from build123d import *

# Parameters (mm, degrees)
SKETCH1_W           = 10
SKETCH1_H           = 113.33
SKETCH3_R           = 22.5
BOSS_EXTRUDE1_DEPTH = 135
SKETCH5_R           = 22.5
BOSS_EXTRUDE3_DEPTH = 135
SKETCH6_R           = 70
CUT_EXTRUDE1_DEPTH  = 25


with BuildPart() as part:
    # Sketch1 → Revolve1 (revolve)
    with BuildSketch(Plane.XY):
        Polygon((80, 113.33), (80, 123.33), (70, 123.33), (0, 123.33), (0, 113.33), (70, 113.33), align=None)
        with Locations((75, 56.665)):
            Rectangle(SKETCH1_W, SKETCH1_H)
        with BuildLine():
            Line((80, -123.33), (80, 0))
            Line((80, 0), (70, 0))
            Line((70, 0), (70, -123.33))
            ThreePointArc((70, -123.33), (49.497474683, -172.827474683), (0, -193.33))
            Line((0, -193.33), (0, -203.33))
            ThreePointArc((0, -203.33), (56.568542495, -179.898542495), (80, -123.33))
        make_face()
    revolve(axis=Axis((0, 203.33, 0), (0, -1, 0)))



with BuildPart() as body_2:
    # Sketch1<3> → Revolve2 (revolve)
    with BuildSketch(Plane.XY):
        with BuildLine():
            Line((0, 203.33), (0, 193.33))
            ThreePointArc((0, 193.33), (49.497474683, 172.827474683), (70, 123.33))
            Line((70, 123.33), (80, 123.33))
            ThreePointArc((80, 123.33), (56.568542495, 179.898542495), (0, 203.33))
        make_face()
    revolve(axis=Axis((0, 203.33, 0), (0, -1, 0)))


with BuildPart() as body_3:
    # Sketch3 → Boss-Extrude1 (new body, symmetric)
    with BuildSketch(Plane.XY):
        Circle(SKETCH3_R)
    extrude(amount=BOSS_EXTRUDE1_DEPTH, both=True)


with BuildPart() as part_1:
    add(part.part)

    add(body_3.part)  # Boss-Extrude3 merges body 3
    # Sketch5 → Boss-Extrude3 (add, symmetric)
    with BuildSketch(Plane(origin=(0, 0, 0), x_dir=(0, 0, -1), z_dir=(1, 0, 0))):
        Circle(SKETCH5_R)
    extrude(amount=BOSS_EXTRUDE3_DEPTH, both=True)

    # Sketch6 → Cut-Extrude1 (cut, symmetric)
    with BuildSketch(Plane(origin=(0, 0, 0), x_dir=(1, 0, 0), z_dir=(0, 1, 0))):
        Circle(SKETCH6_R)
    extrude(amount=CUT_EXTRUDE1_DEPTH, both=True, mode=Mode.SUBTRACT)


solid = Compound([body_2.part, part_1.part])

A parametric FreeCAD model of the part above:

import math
import FreeCAD as App
import Part
import Sketcher

V = App.Vector

doc = App.newDocument("Part")
body = doc.addObject("PartDesign::Body", "Body")

# Sketch on XY plane
sketch1 = doc.addObject("Sketcher::SketchObject", "Sketch")
body.addObject(sketch1)
sketch1.AttachmentSupport = (doc.XY_Plane, [""])
sketch1.MapMode = "FlatFace"
sketch1.addGeometry(Part.LineSegment(V(80, 123, 0), V(0, 123, 0)), False)
sketch1.addGeometry(Part.LineSegment(V(0, 123, 0), V(0, 113, 0)), False)
sketch1.addGeometry(Part.LineSegment(V(0, 113, 0), V(70, 113, 0)), False)
sketch1.addGeometry(Part.LineSegment(V(70, 113, 0), V(70, -123, 0)), False)
sketch1.addGeometry(Part.ArcOfCircle(Part.Circle(V(0, -123, 0), V(0, 0, 1), 70), math.radians(-90), math.radians(0)), False)
sketch1.addGeometry(Part.LineSegment(V(0, -193, 0), V(0, -203, 0)), False)
sketch1.addGeometry(Part.ArcOfCircle(Part.Circle(V(0, -123, 0), V(0, 0, 1), 80), math.radians(-90), math.radians(0)), False)
sketch1.addGeometry(Part.LineSegment(V(80, -123, 0), V(80, 123, 0)), False)
sketch1.addConstraint(Sketcher.Constraint("Coincident", 0, 2, 1, 1))
sketch1.addConstraint(Sketcher.Constraint("Coincident", 1, 2, 2, 1))
sketch1.addConstraint(Sketcher.Constraint("Coincident", 2, 2, 3, 1))
sketch1.addConstraint(Sketcher.Constraint("Tangent", 3, 2, 4, 2))
sketch1.addConstraint(Sketcher.Constraint("Coincident", 4, 1, 5, 1))
sketch1.addConstraint(Sketcher.Constraint("Coincident", 5, 2, 6, 1))
sketch1.addConstraint(Sketcher.Constraint("Tangent", 6, 2, 7, 1))
sketch1.addConstraint(Sketcher.Constraint("Coincident", 7, 2, 0, 1))
sketch1.addConstraint(Sketcher.Constraint("Horizontal", 0))
sketch1.addConstraint(Sketcher.Constraint("Vertical", 1))
sketch1.addConstraint(Sketcher.Constraint("Horizontal", 2))
sketch1.addConstraint(Sketcher.Constraint("Vertical", 3))
sketch1.addConstraint(Sketcher.Constraint("Vertical", 5))
sketch1.addConstraint(Sketcher.Constraint("Vertical", 7))
sketch1.addConstraint(Sketcher.Constraint("Coincident", 6, 3, 4, 3))
sketch1.addConstraint(Sketcher.Constraint("PointOnObject", 4, 3, -2))
sketch1.addConstraint(Sketcher.Constraint("PointOnObject", 0, 2, -2))
sketch1.addConstraint(Sketcher.Constraint("PointOnObject", 4, 1, -2))
sketch1.addConstraint(Sketcher.Constraint("Equal", 1, 5))
sketch1.addConstraint(Sketcher.Constraint("Radius", 4, 70.0))
sketch1.addConstraint(Sketcher.Constraint("Radius", 6, 80.0))
sketch1.addConstraint(Sketcher.Constraint("DistanceY", 3, 2, 3, 1, 236.66))
sketch1.addConstraint(Sketcher.Constraint("DistanceY", 4, 3, -1, 1, 123.33))
revolution = doc.addObject("PartDesign::Revolution", "Revolution")
body.addObject(revolution)
revolution.Profile = sketch1
revolution.ReferenceAxis = (sketch1, ["V_Axis"])
revolution.Angle = 360
body2 = doc.addObject("PartDesign::Body", "Body001")

# Sketch on XY plane
sketch2 = doc.addObject("Sketcher::SketchObject", "Sketch001")
body2.addObject(sketch2)
sketch2.AttachmentSupport = (doc.getObject("XY_Plane001"), [""])
sketch2.MapMode = "FlatFace"
sketch2.addGeometry(Part.LineSegment(V(0, 203, 0), V(0, 193, 0)), False)
sketch2.addGeometry(Part.ArcOfCircle(Part.Circle(V(0, 123, 0), V(0, 0, 1), 70), math.radians(0), math.radians(90)), False)
sketch2.addGeometry(Part.LineSegment(V(70, 123, 0), V(80, 123, 0)), False)
sketch2.addGeometry(Part.ArcOfCircle(Part.Circle(V(0, 123, 0), V(0, 0, 1), 80), math.radians(0), math.radians(90)), False)
sketch2.addConstraint(Sketcher.Constraint("Coincident", 0, 2, 1, 2))
sketch2.addConstraint(Sketcher.Constraint("Coincident", 1, 1, 2, 1))
sketch2.addConstraint(Sketcher.Constraint("Coincident", 2, 2, 3, 1))
sketch2.addConstraint(Sketcher.Constraint("Coincident", 3, 2, 0, 1))
sketch2.addConstraint(Sketcher.Constraint("Vertical", 0))
sketch2.addConstraint(Sketcher.Constraint("Horizontal", 2))
sketch2.addConstraint(Sketcher.Constraint("Coincident", 3, 3, 1, 3))
sketch2.addConstraint(Sketcher.Constraint("PointOnObject", 1, 3, -2))
sketch2.addConstraint(Sketcher.Constraint("PointOnObject", 0, 2, -2))
sketch2.addConstraint(Sketcher.Constraint("Horizontal", 3, 3, 1, 1))
sketch2.addConstraint(Sketcher.Constraint("Radius", 1, 70.0))
sketch2.addConstraint(Sketcher.Constraint("Radius", 3, 80.0))
sketch2.addConstraint(Sketcher.Constraint("DistanceY", -1, 1, 1, 3, 123.33))
revolution2 = doc.addObject("PartDesign::Revolution", "Revolution001")
body2.addObject(revolution2)
revolution2.Profile = sketch2
revolution2.ReferenceAxis = (sketch2, ["V_Axis"])
revolution2.Angle = 360
body3 = doc.addObject("PartDesign::Body", "Body002")

# Sketch on XY plane
sketch3 = doc.addObject("Sketcher::SketchObject", "Sketch002")
body3.addObject(sketch3)
sketch3.AttachmentSupport = (doc.getObject("XY_Plane002"), [""])
sketch3.MapMode = "FlatFace"
sketch3.addGeometry(Part.Circle(V(0, 0, 0), V(0, 0, 1), 22), False)
sketch3.addConstraint(Sketcher.Constraint("Coincident", 0, 3, -1, 1))
sketch3.addConstraint(Sketcher.Constraint("Diameter", 0, 45.0))
pad1 = doc.addObject("PartDesign::Pad", "Pad")
body3.addObject(pad1)
pad1.Profile = sketch3
pad1.Length = 270
pad1.Midplane = True
doc.recompute()

boolean = doc.addObject("PartDesign::Boolean", "Boolean")
body.addObject(boolean)
boolean.Type = "Fuse"
boolean.addObjects([body3])

# Sketch on YZ plane
sketch4 = doc.addObject("Sketcher::SketchObject", "Sketch003")
body.addObject(sketch4)
sketch4.AttachmentSupport = (doc.YZ_Plane, [""])
sketch4.MapMode = "FlatFace"
sketch4.addGeometry(Part.Circle(V(0, 0, 0), V(0, 0, 1), 22), False)
sketch4.addConstraint(Sketcher.Constraint("Coincident", 0, 3, -1, 1))
sketch4.addConstraint(Sketcher.Constraint("Diameter", 0, 45.0))
pad2 = doc.addObject("PartDesign::Pad", "Pad001")
body.addObject(pad2)
pad2.Profile = sketch4
pad2.Length = 270
pad2.Midplane = True

# Sketch on XZ plane
sketch5 = doc.addObject("Sketcher::SketchObject", "Sketch004")
body.addObject(sketch5)
sketch5.AttachmentSupport = (doc.XZ_Plane, [""])
sketch5.MapMode = "FlatFace"
sketch5.addGeometry(Part.Circle(V(0, 0, 0), V(0, 0, 1), 70), False)
sketch5.addConstraint(Sketcher.Constraint("Coincident", 0, 3, -1, 1))
sketch5.addConstraint(Sketcher.Constraint("Diameter", 0, 140.0))
pocket1 = doc.addObject("PartDesign::Pocket", "Pocket")
body.addObject(pocket1)
pocket1.Profile = sketch5
pocket1.Length = 50
pocket1.Midplane = True

doc.recompute()
